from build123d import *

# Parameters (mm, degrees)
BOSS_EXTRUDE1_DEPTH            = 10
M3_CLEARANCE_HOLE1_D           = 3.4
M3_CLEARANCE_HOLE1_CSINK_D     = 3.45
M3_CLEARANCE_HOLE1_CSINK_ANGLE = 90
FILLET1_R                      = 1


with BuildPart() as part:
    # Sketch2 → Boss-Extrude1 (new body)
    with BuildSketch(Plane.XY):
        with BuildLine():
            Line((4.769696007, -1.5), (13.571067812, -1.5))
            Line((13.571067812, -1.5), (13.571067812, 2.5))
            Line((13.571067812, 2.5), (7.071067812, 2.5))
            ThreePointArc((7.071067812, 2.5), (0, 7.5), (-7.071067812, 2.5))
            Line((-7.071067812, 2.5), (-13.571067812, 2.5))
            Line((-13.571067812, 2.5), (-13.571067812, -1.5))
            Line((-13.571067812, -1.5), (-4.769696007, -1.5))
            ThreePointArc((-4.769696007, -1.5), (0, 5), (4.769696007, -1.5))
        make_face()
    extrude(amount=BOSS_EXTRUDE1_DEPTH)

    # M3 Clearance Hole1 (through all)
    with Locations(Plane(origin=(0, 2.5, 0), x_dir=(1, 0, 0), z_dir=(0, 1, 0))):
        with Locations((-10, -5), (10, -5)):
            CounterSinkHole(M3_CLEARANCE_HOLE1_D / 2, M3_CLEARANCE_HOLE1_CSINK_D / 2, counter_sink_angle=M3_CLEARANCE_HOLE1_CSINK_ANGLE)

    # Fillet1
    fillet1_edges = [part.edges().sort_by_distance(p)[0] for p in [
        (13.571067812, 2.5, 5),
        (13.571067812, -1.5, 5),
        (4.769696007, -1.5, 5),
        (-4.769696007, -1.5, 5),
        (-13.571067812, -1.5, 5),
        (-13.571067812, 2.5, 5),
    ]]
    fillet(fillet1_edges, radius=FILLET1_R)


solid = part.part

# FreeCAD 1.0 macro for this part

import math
import FreeCAD as App
import Part
import Sketcher


def edges_at(feature, points):
    """Names of the edges that pass closest to the given points."""
    edges = feature.Shape.Edges
    near = lambda p: min(range(len(edges)), key=lambda i: edges[i].distToShape(Part.Vertex(*p))[0])
    return sorted({f"Edge{near(p) + 1}" for p in points})

doc = App.newDocument("Part")
body = doc.addObject("PartDesign::Body", "Body")

sketch1 = body.newObject("Sketcher::SketchObject", "Sketch")
sketch1.AttachmentSupport = (doc.getObject("XY_Plane"), [""])
sketch1.MapMode = "FlatFace"
sketch1.addGeometry([
    Part.LineSegment(App.Vector(4.769696, -1.5, 0), App.Vector(13.571068, -1.5, 0)),
    Part.LineSegment(App.Vector(13.571068, -1.5, 0), App.Vector(13.571068, 2.5, 0)),
    Part.LineSegment(App.Vector(13.571068, 2.5, 0), App.Vector(7.071068, 2.5, 0)),
    Part.ArcOfCircle(Part.Circle(App.Vector(0, 0, 0), App.Vector(0, 0, 1), 7.5), math.radians(19.471221), math.radians(160.528779)),
    Part.LineSegment(App.Vector(-7.071068, 2.5, 0), App.Vector(-13.571068, 2.5, 0)),
    Part.LineSegment(App.Vector(-13.571068, 2.5, 0), App.Vector(-13.571068, -1.5, 0)),
    Part.LineSegment(App.Vector(-13.571068, -1.5, 0), App.Vector(-4.769696, -1.5, 0)),
    Part.ArcOfCircle(Part.Circle(App.Vector(0, 0, 0), App.Vector(0, 0, 1), 5), math.radians(-17.457603), math.radians(197.457603)),
], False)
sketch1.addConstraint([
    Sketcher.Constraint("Coincident", 0, 2, 1, 1),
    Sketcher.Constraint("Coincident", 1, 2, 2, 1),
    Sketcher.Constraint("Coincident", 2, 2, 3, 1),
    Sketcher.Constraint("Coincident", 3, 2, 4, 1),
    Sketcher.Constraint("Coincident", 4, 2, 5, 1),
    Sketcher.Constraint("Coincident", 5, 2, 6, 1),
    Sketcher.Constraint("Coincident", 6, 2, 7, 2),
    Sketcher.Constraint("Coincident", 7, 1, 0, 1),
    Sketcher.Constraint("Horizontal", 0),
    Sketcher.Constraint("Vertical", 1),
    Sketcher.Constraint("Horizontal", 2),
    Sketcher.Constraint("Horizontal", 4),
    Sketcher.Constraint("Vertical", 5),
    Sketcher.Constraint("Horizontal", 6),
    Sketcher.Constraint("Coincident", 3, 3, -1, 1),
    Sketcher.Constraint("Coincident", 7, 3, -1, 1),
    Sketcher.Constraint("Symmetric", 1, 2, 4, 2, -2),
    Sketcher.Constraint("Horizontal", 0, 2, 5, 2),
    Sketcher.Constraint("Radius", 7, 5.0),
    Sketcher.Constraint("Radius", 3, 7.5),
    Sketcher.Constraint("DistanceY", 1, 1, 1, 2, 4.0),
    Sketcher.Constraint("DistanceX", 2, 2, 2, 1, 6.5),
    Sketcher.Constraint("DistanceY", 0, 2, -1, 1, 1.5),
])
pad1 = body.newObject("PartDesign::Pad", "Pad")
pad1.Profile = sketch1
pad1.Length = 10

sketch2 = body.newObject("Sketcher::SketchObject", "Sketch001")
sketch2.AttachmentSupport = (doc.getObject("XZ_Plane"), [""])
sketch2.MapMode = "FlatFace"
sketch2.AttachmentOffset = App.Placement(App.Vector(0, 0, -2.5), App.Rotation())
sketch2.addGeometry([
    Part.Circle(App.Vector(-10, 5, 0), App.Vector(0, 0, 1), 1.7),
    Part.Circle(App.Vector(10, 5, 0), App.Vector(0, 0, 1), 1.7),
], False)
sketch2.addConstraint([
    Sketcher.Constraint("Equal", 0, 1),
    Sketcher.Constraint("Symmetric", 0, 3, 1, 3, -2),
    Sketcher.Constraint("Diameter", 0, 3.4),
    Sketcher.Constraint("DistanceX", 0, 3, -1, 1, 10.0),
    Sketcher.Constraint("DistanceY", -1, 1, 0, 3, 5.0),
])
doc.recompute()
hole = body.newObject("PartDesign::Hole", "Hole")
hole.Profile = sketch2
hole.ThreadType = "None"
hole.Diameter = 3.4
hole.DepthType = "ThroughAll"
hole.HoleCutType = "Countersink"
hole.HoleCutDiameter = 3.45
hole.HoleCutCountersinkAngle = 90
hole.Reversed = True
doc.recompute()

fillet = body.newObject("PartDesign::Fillet", "Fillet")
fillet.Base = (hole, edges_at(hole, [
    (13.571, 2.5, 5),
    (13.571, -1.5, 5),
    (4.77, -1.5, 5),
    (-4.77, -1.5, 5),
    (-13.571, -1.5, 5),
    (-13.571, 2.5, 5),
]))
fillet.Radius = 1

doc.recompute()
